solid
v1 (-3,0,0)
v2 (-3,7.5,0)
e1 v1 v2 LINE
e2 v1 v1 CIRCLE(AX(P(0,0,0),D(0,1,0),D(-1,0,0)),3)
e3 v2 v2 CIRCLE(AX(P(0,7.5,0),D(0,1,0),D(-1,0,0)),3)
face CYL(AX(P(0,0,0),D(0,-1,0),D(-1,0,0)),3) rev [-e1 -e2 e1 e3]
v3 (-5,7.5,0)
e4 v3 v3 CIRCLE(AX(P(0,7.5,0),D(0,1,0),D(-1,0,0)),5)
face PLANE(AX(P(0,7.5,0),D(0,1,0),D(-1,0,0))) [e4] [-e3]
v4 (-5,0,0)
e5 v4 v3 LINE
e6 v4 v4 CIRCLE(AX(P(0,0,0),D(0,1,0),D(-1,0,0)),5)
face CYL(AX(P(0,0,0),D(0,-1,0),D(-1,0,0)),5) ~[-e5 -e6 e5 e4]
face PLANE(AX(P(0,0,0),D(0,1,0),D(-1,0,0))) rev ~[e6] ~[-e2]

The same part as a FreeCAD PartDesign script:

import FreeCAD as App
import Part
import Sketcher

V = App.Vector
Q = App.Units.Quantity

doc = App.newDocument("Part")
body = doc.addObject("PartDesign::Body", "Body")

sketch1 = body.newObject("Sketcher::SketchObject", "Sketch")
sketch1.AttachmentSupport = (doc.getObject("XZ_Plane"), [""])
sketch1.MapMode = "FlatFace"
sketch1.addGeometry([
    Part.Circle(V(0, 0, 0), V(0, 0, 1), 5),
    Part.Circle(V(0, 0, 0), V(0, 0, 1), 3),
], False)
sketch1.addConstraint([
    Sketcher.Constraint("Coincident", 0, 3, -1, 1),
    Sketcher.Constraint("Coincident", 1, 3, -1, 1),
    Sketcher.Constraint("Diameter", 0, Q("10 mm")),
    Sketcher.Constraint("Diameter", 1, Q("6 mm")),
])
pad1 = body.newObject("PartDesign::Pad", "Pad")
pad1.Profile = sketch1
pad1.Length = 7.5
pad1.Reversed = True

doc.recompute()
